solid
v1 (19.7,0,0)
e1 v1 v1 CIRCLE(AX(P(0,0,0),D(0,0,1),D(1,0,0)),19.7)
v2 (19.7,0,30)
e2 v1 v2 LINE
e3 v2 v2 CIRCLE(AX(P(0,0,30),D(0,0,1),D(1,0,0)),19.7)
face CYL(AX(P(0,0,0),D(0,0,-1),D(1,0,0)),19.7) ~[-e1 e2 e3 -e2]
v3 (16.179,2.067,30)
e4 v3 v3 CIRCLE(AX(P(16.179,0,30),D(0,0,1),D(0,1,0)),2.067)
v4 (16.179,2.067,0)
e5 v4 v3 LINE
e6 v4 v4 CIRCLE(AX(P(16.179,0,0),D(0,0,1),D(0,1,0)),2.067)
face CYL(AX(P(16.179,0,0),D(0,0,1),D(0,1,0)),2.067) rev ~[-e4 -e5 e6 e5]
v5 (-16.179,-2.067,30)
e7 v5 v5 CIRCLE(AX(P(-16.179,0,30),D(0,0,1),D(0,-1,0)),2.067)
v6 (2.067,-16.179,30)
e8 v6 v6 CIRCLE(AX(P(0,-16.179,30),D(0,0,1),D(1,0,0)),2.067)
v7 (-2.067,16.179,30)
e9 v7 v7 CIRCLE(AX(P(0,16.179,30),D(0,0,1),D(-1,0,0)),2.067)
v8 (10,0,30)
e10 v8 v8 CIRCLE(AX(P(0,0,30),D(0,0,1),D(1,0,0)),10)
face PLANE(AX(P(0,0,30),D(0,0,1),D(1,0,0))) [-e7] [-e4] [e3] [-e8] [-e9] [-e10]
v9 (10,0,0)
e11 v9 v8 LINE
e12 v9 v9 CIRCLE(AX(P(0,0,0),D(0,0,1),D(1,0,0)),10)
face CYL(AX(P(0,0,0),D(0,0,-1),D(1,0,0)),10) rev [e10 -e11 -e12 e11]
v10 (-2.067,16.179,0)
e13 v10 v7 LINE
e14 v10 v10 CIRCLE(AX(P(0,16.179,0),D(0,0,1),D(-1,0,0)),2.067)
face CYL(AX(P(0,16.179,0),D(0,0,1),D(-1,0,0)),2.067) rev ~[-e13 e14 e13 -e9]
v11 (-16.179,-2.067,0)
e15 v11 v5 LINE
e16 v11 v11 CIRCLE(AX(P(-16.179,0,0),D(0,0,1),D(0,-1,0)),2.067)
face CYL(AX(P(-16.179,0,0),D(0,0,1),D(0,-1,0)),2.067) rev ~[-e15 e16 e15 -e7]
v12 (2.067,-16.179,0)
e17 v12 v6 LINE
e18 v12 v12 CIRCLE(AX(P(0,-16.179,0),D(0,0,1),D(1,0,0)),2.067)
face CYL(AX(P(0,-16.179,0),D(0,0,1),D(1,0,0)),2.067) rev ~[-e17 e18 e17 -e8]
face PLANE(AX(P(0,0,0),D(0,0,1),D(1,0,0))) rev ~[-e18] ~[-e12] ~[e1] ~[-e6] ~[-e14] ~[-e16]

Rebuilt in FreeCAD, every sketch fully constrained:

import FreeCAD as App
import Part
import Sketcher
from FreeCAD import Vector
Q = App.Units.Quantity

doc = App.newDocument("Part")
body = doc.addObject("PartDesign::Body", "Body")

sketch1 = body.newObject("Sketcher::SketchObject", "Sketch")
sketch1.AttachmentSupport = (doc.getObject("XY_Plane"), [""])
sketch1.MapMode = "FlatFace"
sketch1.addGeometry(Part.Circle(Vector(0, 0, 0), Vector(0, 0, 1), 20), False)
sketch1.addGeometry(Part.Circle(Vector(0, 0, 0), Vector(0, 0, 1), 10), False)
sketch1.addConstraint(Sketcher.Constraint("Coincident", 0, 3, -1, 1))
sketch1.addConstraint(Sketcher.Constraint("Coincident", 1, 3, -1, 1))
sketch1.addConstraint(Sketcher.Constraint("Diameter", 1, Q("20 mm")))
sketch1.addConstraint(Sketcher.Constraint("Diameter", 0, Q("39.4 mm")))
pad1 = body.newObject("PartDesign::Pad", "Pad")
pad1.Profile = sketch1
pad1.Length = 30

sketch2 = body.newObject("Sketcher::SketchObject", "Sketch001")
sketch2.AttachmentSupport = (doc.getObject("XY_Plane"), [""])
sketch2.MapMode = "FlatFace"
sketch2.addGeometry(Part.Circle(Vector(16.2, 0, 0), Vector(0, 0, 1), 2.1), False)
sketch2.addConstraint(Sketcher.Constraint("PointOnObject", 0, 3, -1))
sketch2.addConstraint(Sketcher.Constraint("Diameter", 0, Q("4.134 mm")))
sketch2.addConstraint(Sketcher.Constraint("DistanceX", -1, 1, 0, 3, Q("16.179 mm")))
doc.recompute()
hole = body.newObject("PartDesign::Hole", "Hole")
hole.Profile = sketch2
hole.ThreadType = "None"
hole.Diameter = 4.134
hole.DepthType = "Dimension"
hole.Depth = 61.1
hole.DrillPoint = "Flat"
hole.Reversed = True
doc.recompute()

polarpattern = body.newObject("PartDesign::PolarPattern", "PolarPattern")
polarpattern.Originals = [hole]
polarpattern.Axis = (doc.getObject("Z_Axis"), [""])
polarpattern.Angle = 360
polarpattern.Occurrences = 4
body.Tip = polarpattern

doc.recompute()
